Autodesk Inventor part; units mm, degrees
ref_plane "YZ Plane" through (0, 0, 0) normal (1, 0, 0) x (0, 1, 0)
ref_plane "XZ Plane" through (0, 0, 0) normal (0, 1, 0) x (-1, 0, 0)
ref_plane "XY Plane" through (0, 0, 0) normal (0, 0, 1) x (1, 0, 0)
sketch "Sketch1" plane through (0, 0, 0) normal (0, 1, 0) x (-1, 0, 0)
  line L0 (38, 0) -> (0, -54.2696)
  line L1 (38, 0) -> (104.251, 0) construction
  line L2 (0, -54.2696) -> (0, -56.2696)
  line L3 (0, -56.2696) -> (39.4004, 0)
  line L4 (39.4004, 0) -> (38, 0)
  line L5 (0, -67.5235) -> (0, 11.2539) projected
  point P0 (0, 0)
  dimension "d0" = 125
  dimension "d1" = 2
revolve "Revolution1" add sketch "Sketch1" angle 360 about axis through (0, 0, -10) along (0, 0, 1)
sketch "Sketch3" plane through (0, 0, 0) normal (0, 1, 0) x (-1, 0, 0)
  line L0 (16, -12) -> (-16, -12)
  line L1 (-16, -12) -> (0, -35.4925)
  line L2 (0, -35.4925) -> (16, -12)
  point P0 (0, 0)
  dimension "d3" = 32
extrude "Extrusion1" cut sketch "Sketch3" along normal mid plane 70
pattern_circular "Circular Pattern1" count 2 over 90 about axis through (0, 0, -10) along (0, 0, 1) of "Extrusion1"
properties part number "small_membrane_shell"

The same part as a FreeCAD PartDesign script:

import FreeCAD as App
import Part
import Sketcher

V = App.Vector
Q = App.Units.Quantity

doc = App.newDocument("Part")
body = doc.addObject("PartDesign::Body", "Body")

sketch1 = doc.addObject("Sketcher::SketchObject", "Sketch")
body.addObject(sketch1)
sketch1.AttachmentSupport = (doc.XZ_Plane, [""])
sketch1.MapMode = "FlatFace"
sketch1.addGeometry(Part.LineSegment(V(-39.4, 0, 0), V(-38, 0, 0)), False)
sketch1.addGeometry(Part.LineSegment(V(-38, 0, 0), V(0, -54.3, 0)), False)
sketch1.addGeometry(Part.LineSegment(V(0, -54.3, 0), V(0, -56.3, 0)), False)
sketch1.addGeometry(Part.LineSegment(V(0, -56.3, 0), V(-39.4, 0, 0)), False)
sketch1.addConstraint(Sketcher.Constraint("Coincident", 0, 2, 1, 1))
sketch1.addConstraint(Sketcher.Constraint("Coincident", 1, 2, 2, 1))
sketch1.addConstraint(Sketcher.Constraint("Coincident", 2, 2, 3, 1))
sketch1.addConstraint(Sketcher.Constraint("Coincident", 3, 2, 0, 1))
sketch1.addConstraint(Sketcher.Constraint("Horizontal", 0))
sketch1.addConstraint(Sketcher.Constraint("Vertical", 2))
sketch1.addConstraint(Sketcher.Constraint("PointOnObject", 0, 2, -1))
sketch1.addConstraint(Sketcher.Constraint("PointOnObject", 1, 2, -2))
sketch1.addConstraint(Sketcher.Constraint("Parallel", 1, 3))
sketch1.addConstraint(Sketcher.Constraint("DistanceY", 2, 2, 2, 1, Q("2 mm")))
sketch1.addConstraint(Sketcher.Constraint("Angle", 3, Q("125 deg")))
sketch1.addConstraint(Sketcher.Constraint("DistanceX", 0, 2, -1, 1, Q("38 mm")))
revolution = doc.addObject("PartDesign::Revolution", "Revolution")
body.addObject(revolution)
revolution.Profile = sketch1
revolution.ReferenceAxis = (sketch1, ["V_Axis"])
revolution.Angle = 360

sketch2 = doc.addObject("Sketcher::SketchObject", "Sketch001")
body.addObject(sketch2)
sketch2.AttachmentSupport = (doc.XZ_Plane, [""])
sketch2.MapMode = "FlatFace"
sketch2.addGeometry(Part.LineSegment(V(0, -35, 0), V(-16, -12, 0)), False)
sketch2.addGeometry(Part.LineSegment(V(-16, -12, 0), V(16, -12, 0)), False)
sketch2.addGeometry(Part.LineSegment(V(16, -12, 0), V(0, -35, 0)), False)
sketch2.addConstraint(Sketcher.Constraint("Coincident", 0, 2, 1, 1))
sketch2.addConstraint(Sketcher.Constraint("Coincident", 1, 2, 2, 1))
sketch2.addConstraint(Sketcher.Constraint("Coincident", 2, 2, 0, 1))
sketch2.addConstraint(Sketcher.Constraint("Horizontal", 1))
sketch2.addConstraint(Sketcher.Constraint("PointOnObject", 2, 2, -2))
sketch2.addConstraint(Sketcher.Constraint("Equal", 0, 2))
sketch2.addConstraint(Sketcher.Constraint("DistanceX", 1, 1, 1, 2, Q("32 mm")))
sketch2.addConstraint(Sketcher.Constraint("DistanceY", 0, 2, -1, 1, Q("12 mm")))
sketch2.addConstraint(Sketcher.Constraint("Distance", 0, Q("28.4235 mm")))
pocket1 = doc.addObject("PartDesign::Pocket", "Pocket")
body.addObject(pocket1)
pocket1.Profile = sketch2
pocket1.Length = 70
pocket1.Midplane = True
doc.recompute()

polarpattern = doc.addObject("PartDesign::PolarPattern", "PolarPattern")
body.addObject(polarpattern)
polarpattern.Originals = [pocket1]
polarpattern.Axis = (doc.Z_Axis, [""])
polarpattern.Angle = 90
polarpattern.Occurrences = 2
body.Tip = polarpattern

doc.recompute()
